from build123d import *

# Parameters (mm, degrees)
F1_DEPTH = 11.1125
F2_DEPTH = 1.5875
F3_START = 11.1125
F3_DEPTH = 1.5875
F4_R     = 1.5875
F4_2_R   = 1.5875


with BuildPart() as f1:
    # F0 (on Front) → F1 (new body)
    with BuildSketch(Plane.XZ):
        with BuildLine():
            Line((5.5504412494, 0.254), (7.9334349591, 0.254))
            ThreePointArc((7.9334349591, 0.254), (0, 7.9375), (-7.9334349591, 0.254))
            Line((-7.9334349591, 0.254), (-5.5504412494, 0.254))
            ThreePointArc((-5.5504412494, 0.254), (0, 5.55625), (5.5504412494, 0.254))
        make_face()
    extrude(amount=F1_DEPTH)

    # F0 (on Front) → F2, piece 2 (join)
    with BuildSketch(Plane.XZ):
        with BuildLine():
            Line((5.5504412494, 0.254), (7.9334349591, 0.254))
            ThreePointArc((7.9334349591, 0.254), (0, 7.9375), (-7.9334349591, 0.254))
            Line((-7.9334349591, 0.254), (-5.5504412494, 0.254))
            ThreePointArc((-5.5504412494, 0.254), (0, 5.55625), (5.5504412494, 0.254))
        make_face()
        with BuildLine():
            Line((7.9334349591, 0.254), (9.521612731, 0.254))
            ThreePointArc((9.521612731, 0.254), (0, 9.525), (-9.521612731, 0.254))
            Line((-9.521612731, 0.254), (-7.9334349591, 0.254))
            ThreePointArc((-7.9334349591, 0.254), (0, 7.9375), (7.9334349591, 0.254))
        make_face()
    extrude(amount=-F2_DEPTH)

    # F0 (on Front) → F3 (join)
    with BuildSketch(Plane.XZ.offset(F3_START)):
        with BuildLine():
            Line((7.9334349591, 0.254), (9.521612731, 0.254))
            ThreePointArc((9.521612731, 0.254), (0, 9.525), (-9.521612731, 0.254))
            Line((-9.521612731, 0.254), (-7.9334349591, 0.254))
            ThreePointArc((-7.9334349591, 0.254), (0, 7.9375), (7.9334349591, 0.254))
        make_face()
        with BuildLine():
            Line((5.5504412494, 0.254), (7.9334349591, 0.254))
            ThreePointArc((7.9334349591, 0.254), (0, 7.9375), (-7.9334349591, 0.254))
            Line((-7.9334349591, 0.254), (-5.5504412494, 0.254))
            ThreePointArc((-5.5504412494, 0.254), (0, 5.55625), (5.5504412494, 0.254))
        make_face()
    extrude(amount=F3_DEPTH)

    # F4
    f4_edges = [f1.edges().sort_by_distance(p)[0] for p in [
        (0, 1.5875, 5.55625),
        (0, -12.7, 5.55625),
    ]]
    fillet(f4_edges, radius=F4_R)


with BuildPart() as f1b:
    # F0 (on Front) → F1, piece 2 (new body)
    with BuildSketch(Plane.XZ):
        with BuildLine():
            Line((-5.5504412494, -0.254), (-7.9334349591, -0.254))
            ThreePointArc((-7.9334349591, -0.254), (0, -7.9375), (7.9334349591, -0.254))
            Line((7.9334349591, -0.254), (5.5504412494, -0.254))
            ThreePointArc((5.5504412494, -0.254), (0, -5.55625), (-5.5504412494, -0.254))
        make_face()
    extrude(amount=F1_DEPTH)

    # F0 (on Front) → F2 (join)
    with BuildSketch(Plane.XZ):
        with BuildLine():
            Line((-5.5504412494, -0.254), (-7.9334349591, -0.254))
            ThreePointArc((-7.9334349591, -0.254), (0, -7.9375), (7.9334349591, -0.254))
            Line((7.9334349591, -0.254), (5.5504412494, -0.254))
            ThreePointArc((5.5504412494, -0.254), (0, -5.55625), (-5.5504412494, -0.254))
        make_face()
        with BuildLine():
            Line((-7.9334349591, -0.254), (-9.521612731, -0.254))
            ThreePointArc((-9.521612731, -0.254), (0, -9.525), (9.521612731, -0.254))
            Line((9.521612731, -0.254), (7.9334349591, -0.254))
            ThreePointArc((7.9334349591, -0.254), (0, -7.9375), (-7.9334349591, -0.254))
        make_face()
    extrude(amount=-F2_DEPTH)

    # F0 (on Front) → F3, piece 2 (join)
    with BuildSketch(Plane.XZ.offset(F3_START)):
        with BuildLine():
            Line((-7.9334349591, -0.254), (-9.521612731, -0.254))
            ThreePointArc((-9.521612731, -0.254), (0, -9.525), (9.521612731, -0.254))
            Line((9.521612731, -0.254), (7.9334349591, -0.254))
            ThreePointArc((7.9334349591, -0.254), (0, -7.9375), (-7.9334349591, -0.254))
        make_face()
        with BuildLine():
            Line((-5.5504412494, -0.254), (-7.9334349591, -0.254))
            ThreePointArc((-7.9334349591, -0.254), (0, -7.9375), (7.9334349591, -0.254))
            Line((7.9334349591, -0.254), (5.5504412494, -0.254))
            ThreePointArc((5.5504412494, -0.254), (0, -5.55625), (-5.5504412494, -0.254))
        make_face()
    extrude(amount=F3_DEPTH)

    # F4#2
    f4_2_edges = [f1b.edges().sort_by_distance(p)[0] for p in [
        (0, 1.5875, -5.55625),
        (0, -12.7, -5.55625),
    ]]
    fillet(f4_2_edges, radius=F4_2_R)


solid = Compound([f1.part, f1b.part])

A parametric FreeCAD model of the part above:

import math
import FreeCAD as App
import Part
import Sketcher

V = App.Vector
Q = App.Units.Quantity


def edges_at(feature, points):
    """Names of the edges that pass closest to the given points."""
    edges = feature.Shape.Edges
    near = lambda p: min(range(len(edges)), key=lambda i: edges[i].distToShape(Part.Vertex(*p))[0])
    return sorted({f"Edge{near(p) + 1}" for p in points})

doc = App.newDocument("Part")
body = doc.addObject("PartDesign::Body", "Body")

# Sketch on XZ plane
sketch1 = body.newObject("Sketcher::SketchObject", "Sketch")
sketch1.AttachmentSupport = (doc.getObject("XZ_Plane"), [""])
sketch1.MapMode = "FlatFace"
sketch1.addGeometry(Part.LineSegment(V(5.6, 0.3, 0), V(7.9, 0.3, 0)), False)
sketch1.addGeometry(Part.ArcOfCircle(Part.Circle(V(0, 0, 0), V(0, 0, 1), 7.9), math.radians(2), math.radians(178)), False)
sketch1.addGeometry(Part.LineSegment(V(-7.9, 0.3, 0), V(-5.6, 0.3, 0)), False)
sketch1.addGeometry(Part.ArcOfCircle(Part.Circle(V(0, 0, 0), V(0, 0, 1), 5.6), math.radians(3), math.radians(177)), False)
sketch1.addConstraint(Sketcher.Constraint("Coincident", 0, 2, 1, 1))
sketch1.addConstraint(Sketcher.Constraint("Coincident", 1, 2, 2, 1))
sketch1.addConstraint(Sketcher.Constraint("Coincident", 2, 2, 3, 2))
sketch1.addConstraint(Sketcher.Constraint("Coincident", 3, 1, 0, 1))
sketch1.addConstraint(Sketcher.Constraint("Horizontal", 0))
sketch1.addConstraint(Sketcher.Constraint("Horizontal", 2))
sketch1.addConstraint(Sketcher.Constraint("Coincident", 1, 3, -1, 1))
sketch1.addConstraint(Sketcher.Constraint("Coincident", 3, 3, -1, 1))
sketch1.addConstraint(Sketcher.Constraint("Horizontal", 0, 2, 1, 2))
sketch1.addConstraint(Sketcher.Constraint("Radius", 1, Q("0.3125 in")))
sketch1.addConstraint(Sketcher.Constraint("Radius", 3, Q("0.21875 in")))
sketch1.addConstraint(Sketcher.Constraint("DistanceY", -1, 1, 0, 2, Q("0.01 in")))
pad1 = body.newObject("PartDesign::Pad", "Pad")
pad1.Profile = sketch1
pad1.Length = Q("0.4375 in")

# Sketch on XZ plane
sketch2 = body.newObject("Sketcher::SketchObject", "Sketch001")
sketch2.AttachmentSupport = (doc.getObject("XZ_Plane"), [""])
sketch2.MapMode = "FlatFace"
sketch2.addGeometry(Part.LineSegment(V(5.6, 0.3, 0), V(9.5, 0.3, 0)), False)
sketch2.addGeometry(Part.ArcOfCircle(Part.Circle(V(0, 0, 0), V(0, 0, 1), 9.5), math.radians(2), math.radians(178)), False)
sketch2.addGeometry(Part.LineSegment(V(-9.5, 0.3, 0), V(-5.6, 0.3, 0)), False)
sketch2.addGeometry(Part.ArcOfCircle(Part.Circle(V(0, 0, 0), V(0, 0, 1), 5.6), math.radians(3), math.radians(177)), False)
sketch2.addConstraint(Sketcher.Constraint("Coincident", 0, 2, 1, 1))
sketch2.addConstraint(Sketcher.Constraint("Coincident", 1, 2, 2, 1))
sketch2.addConstraint(Sketcher.Constraint("Coincident", 2, 2, 3, 2))
sketch2.addConstraint(Sketcher.Constraint("Coincident", 3, 1, 0, 1))
sketch2.addConstraint(Sketcher.Constraint("Horizontal", 0))
sketch2.addConstraint(Sketcher.Constraint("Horizontal", 2))
sketch2.addConstraint(Sketcher.Constraint("Coincident", 1, 3, -1, 1))
sketch2.addConstraint(Sketcher.Constraint("Coincident", 3, 3, -1, 1))
sketch2.addConstraint(Sketcher.Constraint("Horizontal", 0, 2, 1, 2))
sketch2.addConstraint(Sketcher.Constraint("Radius", 1, Q("0.375 in")))
sketch2.addConstraint(Sketcher.Constraint("Radius", 3, Q("0.21875 in")))
sketch2.addConstraint(Sketcher.Constraint("DistanceY", -1, 1, 0, 2, Q("0.01 in")))
pad2 = body.newObject("PartDesign::Pad", "Pad001")
pad2.Profile = sketch2
pad2.Length = Q("0.0625 in")
pad2.Reversed = True

# Sketch on XZ plane
sketch3 = body.newObject("Sketcher::SketchObject", "Sketch002")
sketch3.AttachmentSupport = (doc.getObject("XZ_Plane"), [""])
sketch3.MapMode = "FlatFace"
sketch3.AttachmentOffset = App.Placement(V(0, 0, 0.4375 * 25.4), App.Rotation())
sketch3.addGeometry(Part.ArcOfCircle(Part.Circle(V(0, 0, 0), V(0, 0, 1), 9.5), math.radians(2), math.radians(178)), False)
sketch3.addGeometry(Part.LineSegment(V(-9.5, 0.3, 0), V(-5.6, 0.3, 0)), False)
sketch3.addGeometry(Part.ArcOfCircle(Part.Circle(V(0, 0, 0), V(0, 0, 1), 5.6), math.radians(3), math.radians(177)), False)
sketch3.addGeometry(Part.LineSegment(V(5.6, 0.3, 0), V(9.5, 0.3, 0)), False)
sketch3.addConstraint(Sketcher.Constraint("Coincident", 0, 2, 1, 1))
sketch3.addConstraint(Sketcher.Constraint("Coincident", 1, 2, 2, 2))
sketch3.addConstraint(Sketcher.Constraint("Coincident", 2, 1, 3, 1))
sketch3.addConstraint(Sketcher.Constraint("Coincident", 3, 2, 0, 1))
sketch3.addConstraint(Sketcher.Constraint("Horizontal", 1))
sketch3.addConstraint(Sketcher.Constraint("Horizontal", 3))
sketch3.addConstraint(Sketcher.Constraint("Coincident", 0, 3, -1, 1))
sketch3.addConstraint(Sketcher.Constraint("Coincident", 2, 3, -1, 1))
sketch3.addConstraint(Sketcher.Constraint("Horizontal", 1, 2, 2, 1))
sketch3.addConstraint(Sketcher.Constraint("Radius", 0, Q("0.375 in")))
sketch3.addConstraint(Sketcher.Constraint("Radius", 2, Q("0.21875 in")))
sketch3.addConstraint(Sketcher.Constraint("DistanceY", -1, 1, 0, 2, Q("0.01 in")))
pad3 = body.newObject("PartDesign::Pad", "Pad002")
pad3.Profile = sketch3
pad3.Length = Q("0.0625 in")
doc.recompute()

fillet = body.newObject("PartDesign::Fillet", "Fillet")
fillet.Base = (pad3, edges_at(pad3, [(0, 1.587, 5.556), (0, -12.7, 5.556)]))
fillet.Radius = Q("0.0625 in")
body2 = doc.addObject("PartDesign::Body", "Body001")

# Sketch on XZ plane
sketch4 = body2.newObject("Sketcher::SketchObject", "Sketch003")
sketch4.AttachmentSupport = (doc.getObject("XZ_Plane001"), [""])
sketch4.MapMode = "FlatFace"
sketch4.addGeometry(Part.LineSegment(V(-5.6, -0.3, 0), V(-7.9, -0.3, 0)), False)
sketch4.addGeometry(Part.ArcOfCircle(Part.Circle(V(0, 0, 0), V(0, 0, 1), 7.9), math.radians(-178), math.radians(-2)), False)
sketch4.addGeometry(Part.LineSegment(V(7.9, -0.3, 0), V(5.6, -0.3, 0)), False)
sketch4.addGeometry(Part.ArcOfCircle(Part.Circle(V(0, 0, 0), V(0, 0, 1), 5.6), math.radians(-177), math.radians(-3)), False)
sketch4.addConstraint(Sketcher.Constraint("Coincident", 0, 2, 1, 1))
sketch4.addConstraint(Sketcher.Constraint("Coincident", 1, 2, 2, 1))
sketch4.addConstraint(Sketcher.Constraint("Coincident", 2, 2, 3, 2))
sketch4.addConstraint(Sketcher.Constraint("Coincident", 3, 1, 0, 1))
sketch4.addConstraint(Sketcher.Constraint("Horizontal", 0))
sketch4.addConstraint(Sketcher.Constraint("Horizontal", 2))
sketch4.addConstraint(Sketcher.Constraint("Coincident", 1, 3, -1, 1))
sketch4.addConstraint(Sketcher.Constraint("Coincident", 3, 3, -1, 1))
sketch4.addConstraint(Sketcher.Constraint("Horizontal", 0, 2, 1, 2))
sketch4.addConstraint(Sketcher.Constraint("Radius", 1, Q("0.3125 in")))
sketch4.addConstraint(Sketcher.Constraint("Radius", 3, Q("0.21875 in")))
sketch4.addConstraint(Sketcher.Constraint("DistanceY", 0, 2, -1, 1, Q("0.01 in")))
pad4 = body2.newObject("PartDesign::Pad", "Pad003")
pad4.Profile = sketch4
pad4.Length = Q("0.4375 in")

# Sketch on XZ plane
sketch5 = body2.newObject("Sketcher::SketchObject", "Sketch004")
sketch5.AttachmentSupport = (doc.getObject("XZ_Plane001"), [""])
sketch5.MapMode = "FlatFace"
sketch5.addGeometry(Part.LineSegment(V(-5.6, -0.3, 0), V(-9.5, -0.3, 0)), False)
sketch5.addGeometry(Part.ArcOfCircle(Part.Circle(V(0, 0, 0), V(0, 0, 1), 9.5), math.radians(-178), math.radians(-2)), False)
sketch5.addGeometry(Part.LineSegment(V(9.5, -0.3, 0), V(5.6, -0.3, 0)), False)
sketch5.addGeometry(Part.ArcOfCircle(Part.Circle(V(0, 0, 0), V(0, 0, 1), 5.6), math.radians(-177), math.radians(-3)), False)
sketch5.addConstraint(Sketcher.Constraint("Coincident", 0, 2, 1, 1))
sketch5.addConstraint(Sketcher.Constraint("Coincident", 1, 2, 2, 1))
sketch5.addConstraint(Sketcher.Constraint("Coincident", 2, 2, 3, 2))
sketch5.addConstraint(Sketcher.Constraint("Coincident", 3, 1, 0, 1))
sketch5.addConstraint(Sketcher.Constraint("Horizontal", 0))
sketch5.addConstraint(Sketcher.Constraint("Horizontal", 2))
sketch5.addConstraint(Sketcher.Constraint("Coincident", 1, 3, -1, 1))
sketch5.addConstraint(Sketcher.Constraint("Coincident", 3, 3, -1, 1))
sketch5.addConstraint(Sketcher.Constraint("Horizontal", 0, 2, 1, 2))
sketch5.addConstraint(Sketcher.Constraint("Radius", 1, Q("0.375 in")))
sketch5.addConstraint(Sketcher.Constraint("Radius", 3, Q("0.21875 in")))
sketch5.addConstraint(Sketcher.Constraint("DistanceY", 0, 2, -1, 1, Q("0.01 in")))
pad5 = body2.newObject("PartDesign::Pad", "Pad004")
pad5.Profile = sketch5
pad5.Length = Q("0.0625 in")
pad5.Reversed = True

# Sketch on XZ plane
sketch6 = body2.newObject("Sketcher::SketchObject", "Sketch005")
sketch6.AttachmentSupport = (doc.getObject("XZ_Plane001"), [""])
sketch6.MapMode = "FlatFace"
sketch6.AttachmentOffset = App.Placement(V(0, 0, 0.4375 * 25.4), App.Rotation())
sketch6.addGeometry(Part.ArcOfCircle(Part.Circle(V(0, 0, 0), V(0, 0, 1), 9.5), math.radians(-178), math.radians(-2)), False)
sketch6.addGeometry(Part.LineSegment(V(9.5, -0.3, 0), V(5.6, -0.3, 0)), False)
sketch6.addGeometry(Part.ArcOfCircle(Part.Circle(V(0, 0, 0), V(0, 0, 1), 5.6), math.radians(-177), math.radians(-3)), False)
sketch6.addGeometry(Part.LineSegment(V(-5.6, -0.3, 0), V(-9.5, -0.3, 0)), False)
sketch6.addConstraint(Sketcher.Constraint("Coincident", 0, 2, 1, 1))
sketch6.addConstraint(Sketcher.Constraint("Coincident", 1, 2, 2, 2))
sketch6.addConstraint(Sketcher.Constraint("Coincident", 2, 1, 3, 1))
sketch6.addConstraint(Sketcher.Constraint("Coincident", 3, 2, 0, 1))
sketch6.addConstraint(Sketcher.Constraint("Horizontal", 1))
sketch6.addConstraint(Sketcher.Constraint("Horizontal", 3))
sketch6.addConstraint(Sketcher.Constraint("Coincident", 0, 3, -1, 1))
sketch6.addConstraint(Sketcher.Constraint("Coincident", 2, 3, -1, 1))
sketch6.addConstraint(Sketcher.Constraint("Horizontal", 1, 2, 2, 1))
sketch6.addConstraint(Sketcher.Constraint("Radius", 0, Q("0.375 in")))
sketch6.addConstraint(Sketcher.Constraint("Radius", 2, Q("0.21875 in")))
sketch6.addConstraint(Sketcher.Constraint("DistanceY", 0, 2, -1, 1, Q("0.01 in")))
pad6 = body2.newObject("PartDesign::Pad", "Pad005")
pad6.Profile = sketch6
pad6.Length = Q("0.0625 in")
doc.recompute()

fillet2 = body2.newObject("PartDesign::Fillet", "Fillet001")
fillet2.Base = (pad6, edges_at(pad6, [(0, 1.587, -5.556), (0, -12.7, -5.556)]))
fillet2.Radius = Q("0.0625 in")

doc.recompute()
